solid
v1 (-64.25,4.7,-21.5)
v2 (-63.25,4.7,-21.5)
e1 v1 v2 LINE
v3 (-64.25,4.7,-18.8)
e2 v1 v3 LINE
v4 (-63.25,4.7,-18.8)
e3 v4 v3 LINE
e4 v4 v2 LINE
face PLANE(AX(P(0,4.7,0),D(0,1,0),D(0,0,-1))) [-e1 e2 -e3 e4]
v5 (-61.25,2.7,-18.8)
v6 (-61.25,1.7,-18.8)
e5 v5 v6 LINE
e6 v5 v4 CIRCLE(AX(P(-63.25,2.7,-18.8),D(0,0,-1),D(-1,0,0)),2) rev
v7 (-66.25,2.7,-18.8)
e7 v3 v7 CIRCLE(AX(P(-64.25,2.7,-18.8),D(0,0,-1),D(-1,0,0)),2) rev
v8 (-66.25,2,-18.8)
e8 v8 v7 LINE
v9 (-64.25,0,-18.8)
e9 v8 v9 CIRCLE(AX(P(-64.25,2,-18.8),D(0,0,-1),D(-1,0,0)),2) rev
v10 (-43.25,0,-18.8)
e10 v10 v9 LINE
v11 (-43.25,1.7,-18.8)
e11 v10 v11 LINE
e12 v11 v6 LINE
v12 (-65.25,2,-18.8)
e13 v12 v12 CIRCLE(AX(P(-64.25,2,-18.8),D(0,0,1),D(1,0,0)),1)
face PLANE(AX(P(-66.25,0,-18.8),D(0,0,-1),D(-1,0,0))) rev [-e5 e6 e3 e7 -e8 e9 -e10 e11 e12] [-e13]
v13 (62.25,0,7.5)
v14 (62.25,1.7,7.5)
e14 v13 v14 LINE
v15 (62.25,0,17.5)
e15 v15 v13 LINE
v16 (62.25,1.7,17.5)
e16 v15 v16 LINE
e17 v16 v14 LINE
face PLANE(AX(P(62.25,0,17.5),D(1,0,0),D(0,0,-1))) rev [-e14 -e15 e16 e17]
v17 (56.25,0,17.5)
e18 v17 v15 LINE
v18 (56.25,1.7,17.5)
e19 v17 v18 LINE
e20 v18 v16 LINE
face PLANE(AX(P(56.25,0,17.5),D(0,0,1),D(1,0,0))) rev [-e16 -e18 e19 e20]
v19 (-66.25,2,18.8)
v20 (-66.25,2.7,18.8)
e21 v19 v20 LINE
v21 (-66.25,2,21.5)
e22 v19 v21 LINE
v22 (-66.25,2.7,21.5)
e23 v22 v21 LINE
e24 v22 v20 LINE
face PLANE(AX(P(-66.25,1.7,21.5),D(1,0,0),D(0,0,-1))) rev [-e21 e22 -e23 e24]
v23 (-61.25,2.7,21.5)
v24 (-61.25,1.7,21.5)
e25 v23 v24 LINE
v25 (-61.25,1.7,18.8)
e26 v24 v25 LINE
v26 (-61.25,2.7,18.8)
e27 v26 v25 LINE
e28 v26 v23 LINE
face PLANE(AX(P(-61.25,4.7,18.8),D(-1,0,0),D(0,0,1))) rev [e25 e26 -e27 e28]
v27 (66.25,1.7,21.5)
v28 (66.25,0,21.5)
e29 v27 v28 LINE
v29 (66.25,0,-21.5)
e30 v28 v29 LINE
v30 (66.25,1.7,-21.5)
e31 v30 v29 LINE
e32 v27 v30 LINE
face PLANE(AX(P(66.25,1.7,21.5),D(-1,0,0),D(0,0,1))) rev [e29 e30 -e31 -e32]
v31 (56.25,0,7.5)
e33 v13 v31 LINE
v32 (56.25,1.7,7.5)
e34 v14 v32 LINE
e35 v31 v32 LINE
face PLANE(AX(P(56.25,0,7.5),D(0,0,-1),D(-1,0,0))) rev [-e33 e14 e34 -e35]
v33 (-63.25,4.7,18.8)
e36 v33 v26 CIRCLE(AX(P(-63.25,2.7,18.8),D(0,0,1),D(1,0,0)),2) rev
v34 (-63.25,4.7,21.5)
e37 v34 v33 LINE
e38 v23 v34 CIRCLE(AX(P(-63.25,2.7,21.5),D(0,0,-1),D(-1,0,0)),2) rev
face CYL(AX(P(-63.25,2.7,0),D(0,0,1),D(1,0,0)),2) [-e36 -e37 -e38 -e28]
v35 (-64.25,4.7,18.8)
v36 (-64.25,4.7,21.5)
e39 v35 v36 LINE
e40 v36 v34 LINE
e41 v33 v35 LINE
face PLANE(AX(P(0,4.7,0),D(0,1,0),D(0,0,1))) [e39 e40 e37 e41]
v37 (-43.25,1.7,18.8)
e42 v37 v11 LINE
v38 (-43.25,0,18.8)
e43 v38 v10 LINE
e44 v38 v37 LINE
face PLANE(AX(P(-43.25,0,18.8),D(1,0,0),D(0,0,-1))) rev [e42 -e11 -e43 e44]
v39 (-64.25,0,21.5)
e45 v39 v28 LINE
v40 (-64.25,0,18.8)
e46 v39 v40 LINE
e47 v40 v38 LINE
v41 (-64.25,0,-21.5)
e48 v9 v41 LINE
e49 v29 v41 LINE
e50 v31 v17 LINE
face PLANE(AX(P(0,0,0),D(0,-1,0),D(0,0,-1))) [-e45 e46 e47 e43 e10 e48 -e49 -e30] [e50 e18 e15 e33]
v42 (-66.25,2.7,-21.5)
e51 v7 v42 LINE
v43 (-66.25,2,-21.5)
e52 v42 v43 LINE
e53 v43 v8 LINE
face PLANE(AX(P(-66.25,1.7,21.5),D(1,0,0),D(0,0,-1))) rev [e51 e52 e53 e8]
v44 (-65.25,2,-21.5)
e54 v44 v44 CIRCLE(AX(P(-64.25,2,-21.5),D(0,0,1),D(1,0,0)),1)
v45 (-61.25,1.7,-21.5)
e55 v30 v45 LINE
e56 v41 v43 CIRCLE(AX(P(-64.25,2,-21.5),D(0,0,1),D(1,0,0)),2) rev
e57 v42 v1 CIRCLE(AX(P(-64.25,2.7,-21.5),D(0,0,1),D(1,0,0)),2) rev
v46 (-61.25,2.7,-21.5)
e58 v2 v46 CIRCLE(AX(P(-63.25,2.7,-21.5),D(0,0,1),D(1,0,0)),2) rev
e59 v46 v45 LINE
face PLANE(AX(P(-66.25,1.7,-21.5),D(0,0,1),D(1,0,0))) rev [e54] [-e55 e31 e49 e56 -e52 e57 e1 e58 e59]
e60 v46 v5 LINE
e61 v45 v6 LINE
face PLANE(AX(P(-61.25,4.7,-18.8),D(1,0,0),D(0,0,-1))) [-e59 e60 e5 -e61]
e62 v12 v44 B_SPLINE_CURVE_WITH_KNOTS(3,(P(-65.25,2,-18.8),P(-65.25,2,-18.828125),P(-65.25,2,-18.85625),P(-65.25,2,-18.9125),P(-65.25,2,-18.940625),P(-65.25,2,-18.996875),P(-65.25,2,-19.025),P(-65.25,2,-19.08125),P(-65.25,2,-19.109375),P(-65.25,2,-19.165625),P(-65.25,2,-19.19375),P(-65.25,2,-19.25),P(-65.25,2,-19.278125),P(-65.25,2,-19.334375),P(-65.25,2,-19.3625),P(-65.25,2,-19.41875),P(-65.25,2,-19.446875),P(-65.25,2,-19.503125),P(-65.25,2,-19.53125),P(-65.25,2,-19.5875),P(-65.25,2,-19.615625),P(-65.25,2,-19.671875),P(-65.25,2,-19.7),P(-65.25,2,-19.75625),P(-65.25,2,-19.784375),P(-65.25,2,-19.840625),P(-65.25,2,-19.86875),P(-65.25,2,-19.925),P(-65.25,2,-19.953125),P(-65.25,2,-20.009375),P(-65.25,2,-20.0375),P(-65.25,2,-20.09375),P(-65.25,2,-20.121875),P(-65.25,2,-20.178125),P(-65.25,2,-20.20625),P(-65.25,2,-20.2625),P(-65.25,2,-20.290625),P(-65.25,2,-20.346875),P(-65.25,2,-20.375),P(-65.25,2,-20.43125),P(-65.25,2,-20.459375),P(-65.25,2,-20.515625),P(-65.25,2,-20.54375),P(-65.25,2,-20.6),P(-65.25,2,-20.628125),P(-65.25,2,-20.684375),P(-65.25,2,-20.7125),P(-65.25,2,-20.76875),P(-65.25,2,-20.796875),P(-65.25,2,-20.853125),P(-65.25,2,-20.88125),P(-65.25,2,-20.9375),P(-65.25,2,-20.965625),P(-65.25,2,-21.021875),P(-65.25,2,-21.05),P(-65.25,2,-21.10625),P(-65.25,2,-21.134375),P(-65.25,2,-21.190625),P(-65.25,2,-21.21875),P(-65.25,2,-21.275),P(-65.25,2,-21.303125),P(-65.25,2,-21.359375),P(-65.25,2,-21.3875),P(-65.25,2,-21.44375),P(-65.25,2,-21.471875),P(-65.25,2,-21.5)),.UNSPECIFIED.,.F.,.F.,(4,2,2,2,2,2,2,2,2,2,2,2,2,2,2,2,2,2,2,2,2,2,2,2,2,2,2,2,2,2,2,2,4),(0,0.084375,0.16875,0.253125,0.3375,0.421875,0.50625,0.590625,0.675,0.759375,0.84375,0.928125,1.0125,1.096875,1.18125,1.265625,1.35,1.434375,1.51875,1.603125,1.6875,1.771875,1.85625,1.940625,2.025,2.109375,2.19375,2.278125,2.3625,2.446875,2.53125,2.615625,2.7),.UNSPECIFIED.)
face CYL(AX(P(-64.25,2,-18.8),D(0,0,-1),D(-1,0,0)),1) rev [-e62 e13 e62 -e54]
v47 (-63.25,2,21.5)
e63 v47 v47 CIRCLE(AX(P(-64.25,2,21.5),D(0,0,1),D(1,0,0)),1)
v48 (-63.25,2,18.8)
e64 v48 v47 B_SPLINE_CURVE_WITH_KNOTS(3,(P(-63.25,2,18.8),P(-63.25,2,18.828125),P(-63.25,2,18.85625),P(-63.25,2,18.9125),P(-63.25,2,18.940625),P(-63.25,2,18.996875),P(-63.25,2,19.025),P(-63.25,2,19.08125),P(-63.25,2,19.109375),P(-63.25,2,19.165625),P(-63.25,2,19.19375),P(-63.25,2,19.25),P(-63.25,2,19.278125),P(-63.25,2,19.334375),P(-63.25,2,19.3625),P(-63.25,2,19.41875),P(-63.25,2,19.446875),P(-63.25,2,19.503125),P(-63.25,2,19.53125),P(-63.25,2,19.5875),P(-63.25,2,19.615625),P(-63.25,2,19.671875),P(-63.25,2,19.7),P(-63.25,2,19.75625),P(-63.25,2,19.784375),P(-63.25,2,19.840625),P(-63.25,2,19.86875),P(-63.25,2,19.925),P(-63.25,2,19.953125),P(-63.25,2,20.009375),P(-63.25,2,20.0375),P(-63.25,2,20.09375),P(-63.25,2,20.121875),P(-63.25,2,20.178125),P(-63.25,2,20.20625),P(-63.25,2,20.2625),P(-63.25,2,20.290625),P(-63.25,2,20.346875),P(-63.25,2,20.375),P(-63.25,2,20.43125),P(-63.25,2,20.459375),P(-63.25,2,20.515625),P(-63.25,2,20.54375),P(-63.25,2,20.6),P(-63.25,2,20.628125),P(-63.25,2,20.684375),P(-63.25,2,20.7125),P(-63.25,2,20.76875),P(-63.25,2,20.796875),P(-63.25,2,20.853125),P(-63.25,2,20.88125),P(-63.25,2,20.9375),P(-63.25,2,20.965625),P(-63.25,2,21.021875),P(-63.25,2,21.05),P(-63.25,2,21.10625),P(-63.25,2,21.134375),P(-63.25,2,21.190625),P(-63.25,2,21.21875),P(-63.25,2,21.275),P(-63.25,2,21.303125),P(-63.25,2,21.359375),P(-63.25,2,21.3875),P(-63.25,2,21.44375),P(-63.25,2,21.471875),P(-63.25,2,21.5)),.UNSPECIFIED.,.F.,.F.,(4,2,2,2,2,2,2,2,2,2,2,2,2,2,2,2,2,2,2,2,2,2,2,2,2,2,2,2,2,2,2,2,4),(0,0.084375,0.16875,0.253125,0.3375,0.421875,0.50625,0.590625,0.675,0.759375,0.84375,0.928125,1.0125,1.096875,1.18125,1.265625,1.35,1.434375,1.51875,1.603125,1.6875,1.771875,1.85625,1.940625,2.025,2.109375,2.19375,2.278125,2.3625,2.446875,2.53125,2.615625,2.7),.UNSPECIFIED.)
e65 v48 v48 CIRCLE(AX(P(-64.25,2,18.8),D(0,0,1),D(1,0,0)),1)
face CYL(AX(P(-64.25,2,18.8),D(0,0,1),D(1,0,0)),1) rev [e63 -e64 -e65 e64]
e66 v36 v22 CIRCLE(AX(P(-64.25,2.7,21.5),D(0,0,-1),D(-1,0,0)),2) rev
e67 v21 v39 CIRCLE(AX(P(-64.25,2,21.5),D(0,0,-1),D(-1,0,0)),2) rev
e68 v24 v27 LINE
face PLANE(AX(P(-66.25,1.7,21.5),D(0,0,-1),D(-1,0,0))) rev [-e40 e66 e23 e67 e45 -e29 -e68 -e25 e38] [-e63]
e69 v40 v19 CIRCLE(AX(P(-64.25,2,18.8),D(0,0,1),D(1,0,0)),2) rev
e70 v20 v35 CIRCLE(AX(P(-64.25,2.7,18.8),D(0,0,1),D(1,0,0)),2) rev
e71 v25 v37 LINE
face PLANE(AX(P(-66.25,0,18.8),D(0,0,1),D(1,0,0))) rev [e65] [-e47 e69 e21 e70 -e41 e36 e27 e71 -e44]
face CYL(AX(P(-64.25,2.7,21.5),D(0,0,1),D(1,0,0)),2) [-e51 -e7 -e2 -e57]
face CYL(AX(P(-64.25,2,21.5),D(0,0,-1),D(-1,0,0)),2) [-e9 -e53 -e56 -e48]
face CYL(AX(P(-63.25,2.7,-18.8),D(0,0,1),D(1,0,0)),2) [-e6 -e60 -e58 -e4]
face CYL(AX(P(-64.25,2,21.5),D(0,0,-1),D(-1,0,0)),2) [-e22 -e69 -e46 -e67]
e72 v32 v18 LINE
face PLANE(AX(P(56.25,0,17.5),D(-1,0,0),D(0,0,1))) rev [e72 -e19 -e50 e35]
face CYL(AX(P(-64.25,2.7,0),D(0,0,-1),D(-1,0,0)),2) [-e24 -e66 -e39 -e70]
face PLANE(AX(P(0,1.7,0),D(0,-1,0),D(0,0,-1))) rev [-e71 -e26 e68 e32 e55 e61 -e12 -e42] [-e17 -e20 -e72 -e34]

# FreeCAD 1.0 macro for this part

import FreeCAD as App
import Part
import Sketcher
from FreeCAD import Vector
Q = App.Units.Quantity


def edges_at(feature, points):
    """Names of the edges that pass closest to the given points."""
    edges = feature.Shape.Edges
    near = lambda p: min(range(len(edges)), key=lambda i: edges[i].distToShape(Part.Vertex(*p))[0])
    return sorted({f"Edge{near(p) + 1}" for p in points})

doc = App.newDocument("Part")
body = doc.addObject("PartDesign::Body", "Body")

sketch1 = body.newObject("Sketcher::SketchObject", "Sketch")
sketch1.AttachmentSupport = (doc.getObject("XZ_Plane"), [""])
sketch1.MapMode = "FlatFace"
sketch1.addGeometry([
    Part.LineSegment(Vector(-66, -22, 0), Vector(-66, 22, 0)),
    Part.LineSegment(Vector(-66, 22, 0), Vector(66, 22, 0)),
    Part.LineSegment(Vector(66, 22, 0), Vector(66, -22, 0)),
    Part.LineSegment(Vector(66, -22, 0), Vector(-66, -22, 0)),
], False)
sketch1.addConstraint([
    Sketcher.Constraint("Coincident", 0, 2, 1, 1),
    Sketcher.Constraint("Coincident", 1, 2, 2, 1),
    Sketcher.Constraint("Coincident", 2, 2, 3, 1),
    Sketcher.Constraint("Coincident", 3, 2, 0, 1),
    Sketcher.Constraint("Vertical", 0),
    Sketcher.Constraint("Horizontal", 1),
    Sketcher.Constraint("Vertical", 2),
    Sketcher.Constraint("Horizontal", 3),
    Sketcher.Constraint("Symmetric", 0, 2, 2, 2, -1, 1),
    Sketcher.Constraint("DistanceY", 0, 1, 0, 2, Q("43 mm")),
    Sketcher.Constraint("DistanceX", 1, 1, 1, 2, Q("132.5 mm")),
])
pad1 = body.newObject("PartDesign::Pad", "Pad")
pad1.Profile = sketch1
pad1.Length = 1.7
pad1.Reversed = True

sketch2 = body.newObject("Sketcher::SketchObject", "Sketch001")
sketch2.AttachmentSupport = (doc.getObject("XZ_Plane"), [""])
sketch2.MapMode = "FlatFace"
sketch2.AttachmentOffset = App.Placement(Vector(0, 0, -1.7), App.Rotation())
sketch2.addGeometry([
    Part.LineSegment(Vector(-66, -19, 0), Vector(-66, 19, 0)),
    Part.LineSegment(Vector(-66, 19, 0), Vector(-43, 19, 0)),
    Part.LineSegment(Vector(-43, 19, 0), Vector(-43, -19, 0)),
    Part.LineSegment(Vector(-43, -19, 0), Vector(-66, -19, 0)),
], False)
sketch2.addConstraint([
    Sketcher.Constraint("Coincident", 0, 2, 1, 1),
    Sketcher.Constraint("Coincident", 1, 2, 2, 1),
    Sketcher.Constraint("Coincident", 2, 2, 3, 1),
    Sketcher.Constraint("Coincident", 3, 2, 0, 1),
    Sketcher.Constraint("Vertical", 0),
    Sketcher.Constraint("Horizontal", 1),
    Sketcher.Constraint("Vertical", 2),
    Sketcher.Constraint("Horizontal", 3),
    Sketcher.Constraint("DistanceX", 1, 1, 1, 2, Q("23 mm")),
    Sketcher.Constraint("DistanceY", 0, 1, 0, 2, Q("37.6 mm")),
    Sketcher.Constraint("DistanceY", -1, 1, 0, 2, Q("18.8 mm")),
    Sketcher.Constraint("DistanceX", 0, 2, -1, 1, Q("66.25 mm")),
])
pocket1 = body.newObject("PartDesign::Pocket", "Pocket")
pocket1.Profile = sketch2
pocket1.Length = 1.7
pocket1.Reversed = True

sketch3 = body.newObject("Sketcher::SketchObject", "Sketch002")
sketch3.AttachmentSupport = (doc.getObject("XZ_Plane"), [""])
sketch3.MapMode = "FlatFace"
sketch3.AttachmentOffset = App.Placement(Vector(0, 0, -1.7), App.Rotation())
sketch3.addGeometry([
    Part.LineSegment(Vector(-66.2, 18.8, 0), Vector(-66.2, 21.5, 0)),
    Part.LineSegment(Vector(-66.2, 21.5, 0), Vector(-61.2, 21.5, 0)),
    Part.LineSegment(Vector(-61.2, 21.5, 0), Vector(-61.2, 18.8, 0)),
    Part.LineSegment(Vector(-61.2, 18.8, 0), Vector(-66.2, 18.8, 0)),
], False)
sketch3.addConstraint([
    Sketcher.Constraint("Coincident", 0, 2, 1, 1),
    Sketcher.Constraint("Coincident", 1, 2, 2, 1),
    Sketcher.Constraint("Coincident", 2, 2, 3, 1),
    Sketcher.Constraint("Coincident", 3, 2, 0, 1),
    Sketcher.Constraint("Vertical", 0),
    Sketcher.Constraint("Horizontal", 1),
    Sketcher.Constraint("Vertical", 2),
    Sketcher.Constraint("Horizontal", 3),
    Sketcher.Constraint("DistanceX", 1, 1, 1, 2, Q("5 mm")),
    Sketcher.Constraint("DistanceY", 0, 1, 0, 2, Q("2.7 mm")),
    Sketcher.Constraint("DistanceY", -1, 1, 0, 2, Q("21.5 mm")),
    Sketcher.Constraint("DistanceX", 0, 2, -1, 1, Q("66.25 mm")),
])
pad2 = body.newObject("PartDesign::Pad", "Pad001")
pad2.Profile = sketch3
pad2.Length = 3
pad2.Reversed = True

sketch4 = body.newObject("Sketcher::SketchObject", "Sketch003")
sketch4.AttachmentSupport = (doc.getObject("XY_Plane"), [""])
sketch4.MapMode = "FlatFace"
sketch4.AttachmentOffset = App.Placement(Vector(0, 0, 21.5), App.Rotation())
sketch4.addGeometry(Part.Circle(Vector(-64.2, 2, 0), Vector(0, 0, 1), 1), False)
sketch4.addConstraint([
    Sketcher.Constraint("Diameter", 0, Q("2 mm")),
    Sketcher.Constraint("DistanceY", -1, 1, 0, 3, Q("2 mm")),
    Sketcher.Constraint("DistanceX", 0, 3, -1, 1, Q("64.25 mm")),
])
pocket2 = body.newObject("PartDesign::Pocket", "Pocket001")
pocket2.Profile = sketch4
pocket2.Length = 2.7
doc.recompute()

fillet = body.newObject("PartDesign::Fillet", "Fillet")
fillet.Base = (pocket2, edges_at(pocket2, [(-66.25, 0, 20.15), (-66.25, 4.7, 20.15), (-61.25, 4.7, 20.15)]))
fillet.Radius = 2
doc.recompute()

mirrored = body.newObject("PartDesign::Mirrored", "Mirrored")
mirrored.Originals = [pad2, pocket2]
mirrored.MirrorPlane = (doc.getObject("XY_Plane"), [""])
body.Tip = mirrored
doc.recompute()

fillet2 = body.newObject("PartDesign::Fillet", "Fillet001")
fillet2.Base = (mirrored, edges_at(mirrored, [(-66.25, 0, -20.15), (-66.25, 4.7, -20.15), (-61.25, 4.7, -20.15)]))
fillet2.Radius = 2

sketch5 = body.newObject("Sketcher::SketchObject", "Sketch004")
sketch5.AttachmentSupport = (doc.getObject("XZ_Plane"), [""])
sketch5.MapMode = "FlatFace"
sketch5.AttachmentOffset = App.Placement(Vector(0, 0, -1.7), App.Rotation())
sketch5.addGeometry([
    Part.LineSegment(Vector(56, 8, 0), Vector(56, 18, 0)),
    Part.LineSegment(Vector(56, 18, 0), Vector(62, 18, 0)),
    Part.LineSegment(Vector(62, 18, 0), Vector(62, 8, 0)),
    Part.LineSegment(Vector(62, 8, 0), Vector(56, 8, 0)),
], False)
sketch5.addConstraint([
    Sketcher.Constraint("Coincident", 0, 2, 1, 1),
    Sketcher.Constraint("Coincident", 1, 2, 2, 1),
    Sketcher.Constraint("Coincident", 2, 2, 3, 1),
    Sketcher.Constraint("Coincident", 3, 2, 0, 1),
    Sketcher.Constraint("Vertical", 0),
    Sketcher.Constraint("Horizontal", 1),
    Sketcher.Constraint("Vertical", 2),
    Sketcher.Constraint("Horizontal", 3),
    Sketcher.Constraint("DistanceX", 1, 1, 1, 2, Q("6 mm")),
    Sketcher.Constraint("DistanceY", 0, 1, 0, 2, Q("10 mm")),
    Sketcher.Constraint("DistanceY", -1, 1, 0, 2, Q("17.5 mm")),
    Sketcher.Constraint("DistanceX", -1, 1, 0, 2, Q("56.25 mm")),
])
pocket3 = body.newObject("PartDesign::Pocket", "Pocket002")
pocket3.Profile = sketch5
pocket3.Length = 1.7
pocket3.Reversed = True

doc.recompute()
